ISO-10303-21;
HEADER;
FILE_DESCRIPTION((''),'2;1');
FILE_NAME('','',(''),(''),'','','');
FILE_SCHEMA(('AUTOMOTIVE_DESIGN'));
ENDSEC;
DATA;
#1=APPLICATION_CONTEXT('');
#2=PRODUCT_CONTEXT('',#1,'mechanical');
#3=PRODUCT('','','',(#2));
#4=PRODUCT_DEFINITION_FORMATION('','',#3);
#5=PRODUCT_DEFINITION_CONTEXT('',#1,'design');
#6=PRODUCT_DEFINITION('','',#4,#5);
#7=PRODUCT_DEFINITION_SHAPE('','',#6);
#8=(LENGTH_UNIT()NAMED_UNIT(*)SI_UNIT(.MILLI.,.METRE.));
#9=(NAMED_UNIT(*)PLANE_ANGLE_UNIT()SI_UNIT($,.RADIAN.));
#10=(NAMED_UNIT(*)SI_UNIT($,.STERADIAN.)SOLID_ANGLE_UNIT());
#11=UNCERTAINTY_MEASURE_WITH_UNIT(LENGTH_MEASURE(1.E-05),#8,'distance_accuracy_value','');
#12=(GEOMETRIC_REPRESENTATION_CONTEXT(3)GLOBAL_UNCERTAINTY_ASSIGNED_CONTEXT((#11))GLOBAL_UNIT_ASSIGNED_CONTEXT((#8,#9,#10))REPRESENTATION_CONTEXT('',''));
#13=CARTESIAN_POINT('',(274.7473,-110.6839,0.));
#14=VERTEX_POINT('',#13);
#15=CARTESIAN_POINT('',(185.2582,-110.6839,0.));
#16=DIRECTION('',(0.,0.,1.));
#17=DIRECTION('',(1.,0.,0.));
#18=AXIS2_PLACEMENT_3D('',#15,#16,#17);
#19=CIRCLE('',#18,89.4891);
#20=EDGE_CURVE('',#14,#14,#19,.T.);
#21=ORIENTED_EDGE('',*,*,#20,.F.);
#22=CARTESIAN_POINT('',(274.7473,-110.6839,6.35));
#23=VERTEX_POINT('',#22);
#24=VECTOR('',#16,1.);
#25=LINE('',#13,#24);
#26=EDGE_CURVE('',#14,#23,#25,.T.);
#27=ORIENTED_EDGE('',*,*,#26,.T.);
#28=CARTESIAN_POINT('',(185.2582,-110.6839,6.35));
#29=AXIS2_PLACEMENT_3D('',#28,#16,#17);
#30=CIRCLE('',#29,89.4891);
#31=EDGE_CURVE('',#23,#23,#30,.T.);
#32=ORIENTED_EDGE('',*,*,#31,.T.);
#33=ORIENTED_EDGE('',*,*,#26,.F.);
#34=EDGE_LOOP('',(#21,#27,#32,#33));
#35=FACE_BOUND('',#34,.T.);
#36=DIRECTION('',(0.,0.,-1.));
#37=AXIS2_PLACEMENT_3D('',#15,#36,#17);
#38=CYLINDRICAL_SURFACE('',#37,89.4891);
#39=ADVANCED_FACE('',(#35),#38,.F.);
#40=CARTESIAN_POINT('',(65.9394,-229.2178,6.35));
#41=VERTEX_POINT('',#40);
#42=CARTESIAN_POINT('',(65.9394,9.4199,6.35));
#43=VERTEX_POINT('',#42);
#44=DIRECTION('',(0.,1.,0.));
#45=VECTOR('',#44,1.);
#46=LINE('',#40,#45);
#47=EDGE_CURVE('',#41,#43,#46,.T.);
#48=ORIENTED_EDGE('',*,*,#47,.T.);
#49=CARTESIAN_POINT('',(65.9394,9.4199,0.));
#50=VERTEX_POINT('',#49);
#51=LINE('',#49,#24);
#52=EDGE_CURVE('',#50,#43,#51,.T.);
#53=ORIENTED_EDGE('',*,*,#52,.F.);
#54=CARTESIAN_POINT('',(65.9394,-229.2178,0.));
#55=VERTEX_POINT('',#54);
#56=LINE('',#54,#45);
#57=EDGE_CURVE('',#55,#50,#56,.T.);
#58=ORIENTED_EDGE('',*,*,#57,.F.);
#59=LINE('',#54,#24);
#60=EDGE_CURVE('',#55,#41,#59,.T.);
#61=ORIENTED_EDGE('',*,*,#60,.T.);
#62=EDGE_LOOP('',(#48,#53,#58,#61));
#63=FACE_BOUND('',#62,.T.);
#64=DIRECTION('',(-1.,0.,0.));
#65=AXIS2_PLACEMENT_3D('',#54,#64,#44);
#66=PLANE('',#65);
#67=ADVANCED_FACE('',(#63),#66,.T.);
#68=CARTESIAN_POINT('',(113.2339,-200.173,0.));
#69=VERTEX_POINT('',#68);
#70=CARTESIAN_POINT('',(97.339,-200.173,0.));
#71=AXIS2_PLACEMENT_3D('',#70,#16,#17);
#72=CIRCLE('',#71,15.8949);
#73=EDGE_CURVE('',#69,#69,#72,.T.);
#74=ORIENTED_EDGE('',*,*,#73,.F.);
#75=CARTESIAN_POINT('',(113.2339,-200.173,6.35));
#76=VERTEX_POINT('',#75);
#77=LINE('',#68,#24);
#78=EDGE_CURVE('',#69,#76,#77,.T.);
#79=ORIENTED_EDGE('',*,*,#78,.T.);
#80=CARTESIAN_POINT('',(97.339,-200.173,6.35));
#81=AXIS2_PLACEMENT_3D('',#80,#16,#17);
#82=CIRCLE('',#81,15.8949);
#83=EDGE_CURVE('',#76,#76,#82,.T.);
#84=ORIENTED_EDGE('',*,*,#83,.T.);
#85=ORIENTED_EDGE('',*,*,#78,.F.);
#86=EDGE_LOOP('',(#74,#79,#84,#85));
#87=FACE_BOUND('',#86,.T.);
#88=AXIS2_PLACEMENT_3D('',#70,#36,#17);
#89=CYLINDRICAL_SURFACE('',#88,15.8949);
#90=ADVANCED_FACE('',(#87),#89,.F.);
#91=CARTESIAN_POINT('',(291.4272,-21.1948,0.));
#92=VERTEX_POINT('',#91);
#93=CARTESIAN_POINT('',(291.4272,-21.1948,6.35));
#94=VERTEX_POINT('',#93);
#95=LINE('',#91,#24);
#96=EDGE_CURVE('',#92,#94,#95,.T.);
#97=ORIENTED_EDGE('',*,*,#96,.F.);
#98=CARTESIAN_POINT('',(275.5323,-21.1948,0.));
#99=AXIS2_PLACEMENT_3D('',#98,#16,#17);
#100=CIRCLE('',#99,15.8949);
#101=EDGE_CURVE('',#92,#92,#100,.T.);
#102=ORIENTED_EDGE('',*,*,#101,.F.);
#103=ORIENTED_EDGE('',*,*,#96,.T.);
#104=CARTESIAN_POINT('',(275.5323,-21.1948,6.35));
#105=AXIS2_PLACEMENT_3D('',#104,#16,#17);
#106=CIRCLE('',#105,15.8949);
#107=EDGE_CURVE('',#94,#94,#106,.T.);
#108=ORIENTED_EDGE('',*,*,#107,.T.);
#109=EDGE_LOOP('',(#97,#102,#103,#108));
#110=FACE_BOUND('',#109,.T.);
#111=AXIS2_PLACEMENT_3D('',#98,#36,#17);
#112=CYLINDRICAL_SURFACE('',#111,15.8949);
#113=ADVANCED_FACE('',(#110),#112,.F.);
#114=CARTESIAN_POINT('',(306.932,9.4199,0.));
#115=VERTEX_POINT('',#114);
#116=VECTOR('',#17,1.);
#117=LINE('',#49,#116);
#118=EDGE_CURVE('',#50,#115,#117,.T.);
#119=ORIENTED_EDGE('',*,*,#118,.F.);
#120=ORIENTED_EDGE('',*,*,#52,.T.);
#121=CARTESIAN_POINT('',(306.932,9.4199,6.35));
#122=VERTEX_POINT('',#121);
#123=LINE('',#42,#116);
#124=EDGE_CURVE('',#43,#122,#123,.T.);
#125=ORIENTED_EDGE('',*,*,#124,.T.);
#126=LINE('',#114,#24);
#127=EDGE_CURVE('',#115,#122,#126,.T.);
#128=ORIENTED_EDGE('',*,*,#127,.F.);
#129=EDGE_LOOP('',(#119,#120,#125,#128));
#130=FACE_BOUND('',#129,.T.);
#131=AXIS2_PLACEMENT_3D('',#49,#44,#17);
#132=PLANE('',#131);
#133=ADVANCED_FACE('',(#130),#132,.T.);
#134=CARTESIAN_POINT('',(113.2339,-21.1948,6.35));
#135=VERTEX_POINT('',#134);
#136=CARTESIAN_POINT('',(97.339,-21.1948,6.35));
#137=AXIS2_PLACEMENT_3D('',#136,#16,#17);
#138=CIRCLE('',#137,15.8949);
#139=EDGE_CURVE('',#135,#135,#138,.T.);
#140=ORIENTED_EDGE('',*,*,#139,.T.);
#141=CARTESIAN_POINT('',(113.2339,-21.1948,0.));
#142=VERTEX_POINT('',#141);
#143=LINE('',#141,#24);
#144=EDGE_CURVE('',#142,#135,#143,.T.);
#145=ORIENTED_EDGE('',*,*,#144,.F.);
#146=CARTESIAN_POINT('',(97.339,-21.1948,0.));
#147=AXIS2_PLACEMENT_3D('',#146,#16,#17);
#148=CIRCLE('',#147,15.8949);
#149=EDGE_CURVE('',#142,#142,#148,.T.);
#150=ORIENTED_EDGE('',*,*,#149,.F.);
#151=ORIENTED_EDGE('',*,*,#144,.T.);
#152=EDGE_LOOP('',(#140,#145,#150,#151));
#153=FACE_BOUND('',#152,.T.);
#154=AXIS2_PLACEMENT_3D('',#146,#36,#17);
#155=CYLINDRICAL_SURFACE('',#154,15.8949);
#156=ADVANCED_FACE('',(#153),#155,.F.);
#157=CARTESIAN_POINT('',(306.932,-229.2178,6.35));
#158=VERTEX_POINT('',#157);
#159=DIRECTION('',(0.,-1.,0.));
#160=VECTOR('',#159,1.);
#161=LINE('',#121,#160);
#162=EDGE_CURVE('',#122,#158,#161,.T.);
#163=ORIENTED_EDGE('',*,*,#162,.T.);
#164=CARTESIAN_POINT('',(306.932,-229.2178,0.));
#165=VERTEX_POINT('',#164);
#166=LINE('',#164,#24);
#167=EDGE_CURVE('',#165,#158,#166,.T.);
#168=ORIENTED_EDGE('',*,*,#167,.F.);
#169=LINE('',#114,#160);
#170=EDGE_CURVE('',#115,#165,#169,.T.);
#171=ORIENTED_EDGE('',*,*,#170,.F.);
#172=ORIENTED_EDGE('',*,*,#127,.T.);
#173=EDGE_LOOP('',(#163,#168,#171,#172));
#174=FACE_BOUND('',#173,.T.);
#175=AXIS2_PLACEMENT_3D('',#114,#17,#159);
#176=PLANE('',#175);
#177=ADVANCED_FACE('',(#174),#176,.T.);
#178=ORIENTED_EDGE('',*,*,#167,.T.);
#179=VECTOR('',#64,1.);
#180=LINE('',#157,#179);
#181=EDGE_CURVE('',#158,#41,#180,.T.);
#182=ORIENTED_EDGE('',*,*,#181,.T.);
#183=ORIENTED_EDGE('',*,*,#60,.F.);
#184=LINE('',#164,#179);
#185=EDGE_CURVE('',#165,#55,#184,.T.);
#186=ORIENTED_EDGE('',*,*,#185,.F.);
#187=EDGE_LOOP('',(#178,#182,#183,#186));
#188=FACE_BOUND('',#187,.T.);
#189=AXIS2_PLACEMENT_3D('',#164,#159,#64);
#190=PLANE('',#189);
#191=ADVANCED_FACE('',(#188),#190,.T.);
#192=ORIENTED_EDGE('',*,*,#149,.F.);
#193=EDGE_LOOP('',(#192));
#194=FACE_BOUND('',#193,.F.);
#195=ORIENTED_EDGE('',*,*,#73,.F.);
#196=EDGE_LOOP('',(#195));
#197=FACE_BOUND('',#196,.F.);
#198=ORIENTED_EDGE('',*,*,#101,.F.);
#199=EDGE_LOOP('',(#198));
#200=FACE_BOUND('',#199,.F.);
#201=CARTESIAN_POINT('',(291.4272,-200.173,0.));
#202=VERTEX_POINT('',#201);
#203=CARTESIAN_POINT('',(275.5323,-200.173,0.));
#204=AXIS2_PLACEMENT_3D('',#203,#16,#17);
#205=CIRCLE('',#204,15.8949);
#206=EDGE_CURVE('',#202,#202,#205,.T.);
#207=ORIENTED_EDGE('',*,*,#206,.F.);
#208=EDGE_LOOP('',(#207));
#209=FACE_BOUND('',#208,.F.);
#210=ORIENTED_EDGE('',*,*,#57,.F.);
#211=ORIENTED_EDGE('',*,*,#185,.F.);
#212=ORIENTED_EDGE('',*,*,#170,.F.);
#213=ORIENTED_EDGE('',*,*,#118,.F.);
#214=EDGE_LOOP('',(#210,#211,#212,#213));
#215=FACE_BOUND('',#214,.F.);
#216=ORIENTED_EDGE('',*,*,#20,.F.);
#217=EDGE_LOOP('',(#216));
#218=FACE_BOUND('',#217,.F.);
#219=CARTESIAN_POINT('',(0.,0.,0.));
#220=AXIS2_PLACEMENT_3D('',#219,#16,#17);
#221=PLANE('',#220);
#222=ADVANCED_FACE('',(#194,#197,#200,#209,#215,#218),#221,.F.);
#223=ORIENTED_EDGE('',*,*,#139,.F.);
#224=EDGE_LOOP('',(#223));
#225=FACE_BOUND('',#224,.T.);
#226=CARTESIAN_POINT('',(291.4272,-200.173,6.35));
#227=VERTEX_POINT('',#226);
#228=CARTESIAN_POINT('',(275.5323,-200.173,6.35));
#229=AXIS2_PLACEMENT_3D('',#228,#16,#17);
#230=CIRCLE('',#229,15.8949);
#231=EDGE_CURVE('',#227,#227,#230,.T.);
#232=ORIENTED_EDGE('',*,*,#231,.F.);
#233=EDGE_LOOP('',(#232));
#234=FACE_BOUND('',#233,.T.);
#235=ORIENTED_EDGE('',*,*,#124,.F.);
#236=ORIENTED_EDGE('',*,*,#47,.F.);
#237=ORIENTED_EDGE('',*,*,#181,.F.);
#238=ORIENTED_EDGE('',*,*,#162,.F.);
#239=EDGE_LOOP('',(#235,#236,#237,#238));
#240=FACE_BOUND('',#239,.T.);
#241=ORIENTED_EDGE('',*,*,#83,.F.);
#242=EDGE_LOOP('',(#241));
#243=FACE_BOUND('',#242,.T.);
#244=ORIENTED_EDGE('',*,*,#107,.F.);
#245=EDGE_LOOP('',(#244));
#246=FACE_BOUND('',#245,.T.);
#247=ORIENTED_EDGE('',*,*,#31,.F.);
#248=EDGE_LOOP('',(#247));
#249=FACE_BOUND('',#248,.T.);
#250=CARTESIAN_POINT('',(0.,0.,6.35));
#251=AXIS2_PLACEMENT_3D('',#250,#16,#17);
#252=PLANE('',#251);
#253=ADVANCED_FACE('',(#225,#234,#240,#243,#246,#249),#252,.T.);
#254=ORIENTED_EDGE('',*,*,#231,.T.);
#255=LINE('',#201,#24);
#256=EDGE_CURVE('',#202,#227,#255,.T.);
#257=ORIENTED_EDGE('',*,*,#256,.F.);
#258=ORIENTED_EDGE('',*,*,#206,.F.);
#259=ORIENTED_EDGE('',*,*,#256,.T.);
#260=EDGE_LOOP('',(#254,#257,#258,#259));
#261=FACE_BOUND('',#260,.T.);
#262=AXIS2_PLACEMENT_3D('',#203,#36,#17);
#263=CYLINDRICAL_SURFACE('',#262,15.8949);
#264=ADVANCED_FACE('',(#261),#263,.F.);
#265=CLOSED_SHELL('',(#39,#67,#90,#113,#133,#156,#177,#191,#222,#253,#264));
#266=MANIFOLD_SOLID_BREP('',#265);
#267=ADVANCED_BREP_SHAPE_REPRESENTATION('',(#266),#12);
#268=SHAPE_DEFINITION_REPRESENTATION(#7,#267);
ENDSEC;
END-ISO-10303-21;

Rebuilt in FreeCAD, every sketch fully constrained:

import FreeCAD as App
import Part
import Sketcher

V = App.Vector
Q = App.Units.Quantity


def add_polygon(sketch, points):
    """Adds a closed chain of lines whose ends are joined by coincident constraints."""
    first, n = sketch.GeometryCount, len(points)
    for a, b in zip(points, points[1:] + points[:1]):
        sketch.addGeometry(Part.LineSegment(App.Vector(*a, 0), App.Vector(*b, 0)), False)
    for i in range(n):
        sketch.addConstraint(Sketcher.Constraint("Coincident", first + i, 2, first + (i + 1) % n, 1))

doc = App.newDocument("Part")
body = doc.addObject("PartDesign::Body", "Body")

# Sketch on XY plane
sketch1 = body.newObject("Sketcher::SketchObject", "Sketch")
sketch1.AttachmentSupport = (doc.getObject("XY_Plane"), [""])
sketch1.MapMode = "FlatFace"
add_polygon(sketch1, [(307, 9), (66, 9), (66, -229), (307, -229)])  # lines 0-3
sketch1.addGeometry(Part.Circle(V(97, -200, 0), V(0, 0, 1), 16), False)  # 4
sketch1.addGeometry(Part.Circle(V(185, -111, 0), V(0, 0, 1), 89), False)  # 5
sketch1.addGeometry(Part.Circle(V(276, -200, 0), V(0, 0, 1), 16), False)  # 6
sketch1.addGeometry(Part.Circle(V(97, -21, 0), V(0, 0, 1), 16), False)  # 7
sketch1.addGeometry(Part.Circle(V(276, -21, 0), V(0, 0, 1), 16), False)  # 8
sketch1.addConstraint(Sketcher.Constraint("Horizontal", 0))
sketch1.addConstraint(Sketcher.Constraint("Vertical", 1))
sketch1.addConstraint(Sketcher.Constraint("Horizontal", 2))
sketch1.addConstraint(Sketcher.Constraint("Vertical", 3))
sketch1.addConstraint(Sketcher.Constraint("Equal", 4, 6))
sketch1.addConstraint(Sketcher.Constraint("Equal", 6, 7))
sketch1.addConstraint(Sketcher.Constraint("Equal", 7, 8))
sketch1.addConstraint(Sketcher.Constraint("Horizontal", 4, 3, 6, 3))
sketch1.addConstraint(Sketcher.Constraint("Horizontal", 7, 3, 8, 3))
sketch1.addConstraint(Sketcher.Constraint("Vertical", 4, 3, 7, 3))
sketch1.addConstraint(Sketcher.Constraint("Vertical", 6, 3, 8, 3))
sketch1.addConstraint(Sketcher.Constraint("Diameter", 4, Q("31.7898 mm")))
sketch1.addConstraint(Sketcher.Constraint("Diameter", 5, Q("178.9782 mm")))
sketch1.addConstraint(Sketcher.Constraint("DistanceX", 0, 2, 0, 1, Q("9.4879 in")))
sketch1.addConstraint(Sketcher.Constraint("DistanceY", 1, 2, 1, 1, Q("238.6377 mm")))
sketch1.addConstraint(Sketcher.Constraint("DistanceY", 4, 3, 5, 3, Q("3.5232 in")))
sketch1.addConstraint(Sketcher.Constraint("DistanceX", 5, 3, 6, 3, Q("3.5541 in")))
sketch1.addConstraint(Sketcher.Constraint("DistanceY", 5, 3, 7, 3, Q("3.5232 in")))
sketch1.addConstraint(Sketcher.Constraint("DistanceX", 0, 2, 7, 3, Q("1.2362 in")))
sketch1.addConstraint(Sketcher.Constraint("DistanceY", 7, 3, 0, 2, Q("1.2053 in")))
sketch1.addConstraint(Sketcher.Constraint("DistanceX", 0, 2, 5, 3, Q("4.6976 in")))
sketch1.addConstraint(Sketcher.Constraint("DistanceX", -1, 1, 4, 3, Q("97.339 mm")))
sketch1.addConstraint(Sketcher.Constraint("DistanceY", 4, 3, -1, 1, Q("200.173 mm")))
pad1 = body.newObject("PartDesign::Pad", "Pad")
pad1.Profile = sketch1
pad1.Length = Q("0.25 in")

doc.recompute()
